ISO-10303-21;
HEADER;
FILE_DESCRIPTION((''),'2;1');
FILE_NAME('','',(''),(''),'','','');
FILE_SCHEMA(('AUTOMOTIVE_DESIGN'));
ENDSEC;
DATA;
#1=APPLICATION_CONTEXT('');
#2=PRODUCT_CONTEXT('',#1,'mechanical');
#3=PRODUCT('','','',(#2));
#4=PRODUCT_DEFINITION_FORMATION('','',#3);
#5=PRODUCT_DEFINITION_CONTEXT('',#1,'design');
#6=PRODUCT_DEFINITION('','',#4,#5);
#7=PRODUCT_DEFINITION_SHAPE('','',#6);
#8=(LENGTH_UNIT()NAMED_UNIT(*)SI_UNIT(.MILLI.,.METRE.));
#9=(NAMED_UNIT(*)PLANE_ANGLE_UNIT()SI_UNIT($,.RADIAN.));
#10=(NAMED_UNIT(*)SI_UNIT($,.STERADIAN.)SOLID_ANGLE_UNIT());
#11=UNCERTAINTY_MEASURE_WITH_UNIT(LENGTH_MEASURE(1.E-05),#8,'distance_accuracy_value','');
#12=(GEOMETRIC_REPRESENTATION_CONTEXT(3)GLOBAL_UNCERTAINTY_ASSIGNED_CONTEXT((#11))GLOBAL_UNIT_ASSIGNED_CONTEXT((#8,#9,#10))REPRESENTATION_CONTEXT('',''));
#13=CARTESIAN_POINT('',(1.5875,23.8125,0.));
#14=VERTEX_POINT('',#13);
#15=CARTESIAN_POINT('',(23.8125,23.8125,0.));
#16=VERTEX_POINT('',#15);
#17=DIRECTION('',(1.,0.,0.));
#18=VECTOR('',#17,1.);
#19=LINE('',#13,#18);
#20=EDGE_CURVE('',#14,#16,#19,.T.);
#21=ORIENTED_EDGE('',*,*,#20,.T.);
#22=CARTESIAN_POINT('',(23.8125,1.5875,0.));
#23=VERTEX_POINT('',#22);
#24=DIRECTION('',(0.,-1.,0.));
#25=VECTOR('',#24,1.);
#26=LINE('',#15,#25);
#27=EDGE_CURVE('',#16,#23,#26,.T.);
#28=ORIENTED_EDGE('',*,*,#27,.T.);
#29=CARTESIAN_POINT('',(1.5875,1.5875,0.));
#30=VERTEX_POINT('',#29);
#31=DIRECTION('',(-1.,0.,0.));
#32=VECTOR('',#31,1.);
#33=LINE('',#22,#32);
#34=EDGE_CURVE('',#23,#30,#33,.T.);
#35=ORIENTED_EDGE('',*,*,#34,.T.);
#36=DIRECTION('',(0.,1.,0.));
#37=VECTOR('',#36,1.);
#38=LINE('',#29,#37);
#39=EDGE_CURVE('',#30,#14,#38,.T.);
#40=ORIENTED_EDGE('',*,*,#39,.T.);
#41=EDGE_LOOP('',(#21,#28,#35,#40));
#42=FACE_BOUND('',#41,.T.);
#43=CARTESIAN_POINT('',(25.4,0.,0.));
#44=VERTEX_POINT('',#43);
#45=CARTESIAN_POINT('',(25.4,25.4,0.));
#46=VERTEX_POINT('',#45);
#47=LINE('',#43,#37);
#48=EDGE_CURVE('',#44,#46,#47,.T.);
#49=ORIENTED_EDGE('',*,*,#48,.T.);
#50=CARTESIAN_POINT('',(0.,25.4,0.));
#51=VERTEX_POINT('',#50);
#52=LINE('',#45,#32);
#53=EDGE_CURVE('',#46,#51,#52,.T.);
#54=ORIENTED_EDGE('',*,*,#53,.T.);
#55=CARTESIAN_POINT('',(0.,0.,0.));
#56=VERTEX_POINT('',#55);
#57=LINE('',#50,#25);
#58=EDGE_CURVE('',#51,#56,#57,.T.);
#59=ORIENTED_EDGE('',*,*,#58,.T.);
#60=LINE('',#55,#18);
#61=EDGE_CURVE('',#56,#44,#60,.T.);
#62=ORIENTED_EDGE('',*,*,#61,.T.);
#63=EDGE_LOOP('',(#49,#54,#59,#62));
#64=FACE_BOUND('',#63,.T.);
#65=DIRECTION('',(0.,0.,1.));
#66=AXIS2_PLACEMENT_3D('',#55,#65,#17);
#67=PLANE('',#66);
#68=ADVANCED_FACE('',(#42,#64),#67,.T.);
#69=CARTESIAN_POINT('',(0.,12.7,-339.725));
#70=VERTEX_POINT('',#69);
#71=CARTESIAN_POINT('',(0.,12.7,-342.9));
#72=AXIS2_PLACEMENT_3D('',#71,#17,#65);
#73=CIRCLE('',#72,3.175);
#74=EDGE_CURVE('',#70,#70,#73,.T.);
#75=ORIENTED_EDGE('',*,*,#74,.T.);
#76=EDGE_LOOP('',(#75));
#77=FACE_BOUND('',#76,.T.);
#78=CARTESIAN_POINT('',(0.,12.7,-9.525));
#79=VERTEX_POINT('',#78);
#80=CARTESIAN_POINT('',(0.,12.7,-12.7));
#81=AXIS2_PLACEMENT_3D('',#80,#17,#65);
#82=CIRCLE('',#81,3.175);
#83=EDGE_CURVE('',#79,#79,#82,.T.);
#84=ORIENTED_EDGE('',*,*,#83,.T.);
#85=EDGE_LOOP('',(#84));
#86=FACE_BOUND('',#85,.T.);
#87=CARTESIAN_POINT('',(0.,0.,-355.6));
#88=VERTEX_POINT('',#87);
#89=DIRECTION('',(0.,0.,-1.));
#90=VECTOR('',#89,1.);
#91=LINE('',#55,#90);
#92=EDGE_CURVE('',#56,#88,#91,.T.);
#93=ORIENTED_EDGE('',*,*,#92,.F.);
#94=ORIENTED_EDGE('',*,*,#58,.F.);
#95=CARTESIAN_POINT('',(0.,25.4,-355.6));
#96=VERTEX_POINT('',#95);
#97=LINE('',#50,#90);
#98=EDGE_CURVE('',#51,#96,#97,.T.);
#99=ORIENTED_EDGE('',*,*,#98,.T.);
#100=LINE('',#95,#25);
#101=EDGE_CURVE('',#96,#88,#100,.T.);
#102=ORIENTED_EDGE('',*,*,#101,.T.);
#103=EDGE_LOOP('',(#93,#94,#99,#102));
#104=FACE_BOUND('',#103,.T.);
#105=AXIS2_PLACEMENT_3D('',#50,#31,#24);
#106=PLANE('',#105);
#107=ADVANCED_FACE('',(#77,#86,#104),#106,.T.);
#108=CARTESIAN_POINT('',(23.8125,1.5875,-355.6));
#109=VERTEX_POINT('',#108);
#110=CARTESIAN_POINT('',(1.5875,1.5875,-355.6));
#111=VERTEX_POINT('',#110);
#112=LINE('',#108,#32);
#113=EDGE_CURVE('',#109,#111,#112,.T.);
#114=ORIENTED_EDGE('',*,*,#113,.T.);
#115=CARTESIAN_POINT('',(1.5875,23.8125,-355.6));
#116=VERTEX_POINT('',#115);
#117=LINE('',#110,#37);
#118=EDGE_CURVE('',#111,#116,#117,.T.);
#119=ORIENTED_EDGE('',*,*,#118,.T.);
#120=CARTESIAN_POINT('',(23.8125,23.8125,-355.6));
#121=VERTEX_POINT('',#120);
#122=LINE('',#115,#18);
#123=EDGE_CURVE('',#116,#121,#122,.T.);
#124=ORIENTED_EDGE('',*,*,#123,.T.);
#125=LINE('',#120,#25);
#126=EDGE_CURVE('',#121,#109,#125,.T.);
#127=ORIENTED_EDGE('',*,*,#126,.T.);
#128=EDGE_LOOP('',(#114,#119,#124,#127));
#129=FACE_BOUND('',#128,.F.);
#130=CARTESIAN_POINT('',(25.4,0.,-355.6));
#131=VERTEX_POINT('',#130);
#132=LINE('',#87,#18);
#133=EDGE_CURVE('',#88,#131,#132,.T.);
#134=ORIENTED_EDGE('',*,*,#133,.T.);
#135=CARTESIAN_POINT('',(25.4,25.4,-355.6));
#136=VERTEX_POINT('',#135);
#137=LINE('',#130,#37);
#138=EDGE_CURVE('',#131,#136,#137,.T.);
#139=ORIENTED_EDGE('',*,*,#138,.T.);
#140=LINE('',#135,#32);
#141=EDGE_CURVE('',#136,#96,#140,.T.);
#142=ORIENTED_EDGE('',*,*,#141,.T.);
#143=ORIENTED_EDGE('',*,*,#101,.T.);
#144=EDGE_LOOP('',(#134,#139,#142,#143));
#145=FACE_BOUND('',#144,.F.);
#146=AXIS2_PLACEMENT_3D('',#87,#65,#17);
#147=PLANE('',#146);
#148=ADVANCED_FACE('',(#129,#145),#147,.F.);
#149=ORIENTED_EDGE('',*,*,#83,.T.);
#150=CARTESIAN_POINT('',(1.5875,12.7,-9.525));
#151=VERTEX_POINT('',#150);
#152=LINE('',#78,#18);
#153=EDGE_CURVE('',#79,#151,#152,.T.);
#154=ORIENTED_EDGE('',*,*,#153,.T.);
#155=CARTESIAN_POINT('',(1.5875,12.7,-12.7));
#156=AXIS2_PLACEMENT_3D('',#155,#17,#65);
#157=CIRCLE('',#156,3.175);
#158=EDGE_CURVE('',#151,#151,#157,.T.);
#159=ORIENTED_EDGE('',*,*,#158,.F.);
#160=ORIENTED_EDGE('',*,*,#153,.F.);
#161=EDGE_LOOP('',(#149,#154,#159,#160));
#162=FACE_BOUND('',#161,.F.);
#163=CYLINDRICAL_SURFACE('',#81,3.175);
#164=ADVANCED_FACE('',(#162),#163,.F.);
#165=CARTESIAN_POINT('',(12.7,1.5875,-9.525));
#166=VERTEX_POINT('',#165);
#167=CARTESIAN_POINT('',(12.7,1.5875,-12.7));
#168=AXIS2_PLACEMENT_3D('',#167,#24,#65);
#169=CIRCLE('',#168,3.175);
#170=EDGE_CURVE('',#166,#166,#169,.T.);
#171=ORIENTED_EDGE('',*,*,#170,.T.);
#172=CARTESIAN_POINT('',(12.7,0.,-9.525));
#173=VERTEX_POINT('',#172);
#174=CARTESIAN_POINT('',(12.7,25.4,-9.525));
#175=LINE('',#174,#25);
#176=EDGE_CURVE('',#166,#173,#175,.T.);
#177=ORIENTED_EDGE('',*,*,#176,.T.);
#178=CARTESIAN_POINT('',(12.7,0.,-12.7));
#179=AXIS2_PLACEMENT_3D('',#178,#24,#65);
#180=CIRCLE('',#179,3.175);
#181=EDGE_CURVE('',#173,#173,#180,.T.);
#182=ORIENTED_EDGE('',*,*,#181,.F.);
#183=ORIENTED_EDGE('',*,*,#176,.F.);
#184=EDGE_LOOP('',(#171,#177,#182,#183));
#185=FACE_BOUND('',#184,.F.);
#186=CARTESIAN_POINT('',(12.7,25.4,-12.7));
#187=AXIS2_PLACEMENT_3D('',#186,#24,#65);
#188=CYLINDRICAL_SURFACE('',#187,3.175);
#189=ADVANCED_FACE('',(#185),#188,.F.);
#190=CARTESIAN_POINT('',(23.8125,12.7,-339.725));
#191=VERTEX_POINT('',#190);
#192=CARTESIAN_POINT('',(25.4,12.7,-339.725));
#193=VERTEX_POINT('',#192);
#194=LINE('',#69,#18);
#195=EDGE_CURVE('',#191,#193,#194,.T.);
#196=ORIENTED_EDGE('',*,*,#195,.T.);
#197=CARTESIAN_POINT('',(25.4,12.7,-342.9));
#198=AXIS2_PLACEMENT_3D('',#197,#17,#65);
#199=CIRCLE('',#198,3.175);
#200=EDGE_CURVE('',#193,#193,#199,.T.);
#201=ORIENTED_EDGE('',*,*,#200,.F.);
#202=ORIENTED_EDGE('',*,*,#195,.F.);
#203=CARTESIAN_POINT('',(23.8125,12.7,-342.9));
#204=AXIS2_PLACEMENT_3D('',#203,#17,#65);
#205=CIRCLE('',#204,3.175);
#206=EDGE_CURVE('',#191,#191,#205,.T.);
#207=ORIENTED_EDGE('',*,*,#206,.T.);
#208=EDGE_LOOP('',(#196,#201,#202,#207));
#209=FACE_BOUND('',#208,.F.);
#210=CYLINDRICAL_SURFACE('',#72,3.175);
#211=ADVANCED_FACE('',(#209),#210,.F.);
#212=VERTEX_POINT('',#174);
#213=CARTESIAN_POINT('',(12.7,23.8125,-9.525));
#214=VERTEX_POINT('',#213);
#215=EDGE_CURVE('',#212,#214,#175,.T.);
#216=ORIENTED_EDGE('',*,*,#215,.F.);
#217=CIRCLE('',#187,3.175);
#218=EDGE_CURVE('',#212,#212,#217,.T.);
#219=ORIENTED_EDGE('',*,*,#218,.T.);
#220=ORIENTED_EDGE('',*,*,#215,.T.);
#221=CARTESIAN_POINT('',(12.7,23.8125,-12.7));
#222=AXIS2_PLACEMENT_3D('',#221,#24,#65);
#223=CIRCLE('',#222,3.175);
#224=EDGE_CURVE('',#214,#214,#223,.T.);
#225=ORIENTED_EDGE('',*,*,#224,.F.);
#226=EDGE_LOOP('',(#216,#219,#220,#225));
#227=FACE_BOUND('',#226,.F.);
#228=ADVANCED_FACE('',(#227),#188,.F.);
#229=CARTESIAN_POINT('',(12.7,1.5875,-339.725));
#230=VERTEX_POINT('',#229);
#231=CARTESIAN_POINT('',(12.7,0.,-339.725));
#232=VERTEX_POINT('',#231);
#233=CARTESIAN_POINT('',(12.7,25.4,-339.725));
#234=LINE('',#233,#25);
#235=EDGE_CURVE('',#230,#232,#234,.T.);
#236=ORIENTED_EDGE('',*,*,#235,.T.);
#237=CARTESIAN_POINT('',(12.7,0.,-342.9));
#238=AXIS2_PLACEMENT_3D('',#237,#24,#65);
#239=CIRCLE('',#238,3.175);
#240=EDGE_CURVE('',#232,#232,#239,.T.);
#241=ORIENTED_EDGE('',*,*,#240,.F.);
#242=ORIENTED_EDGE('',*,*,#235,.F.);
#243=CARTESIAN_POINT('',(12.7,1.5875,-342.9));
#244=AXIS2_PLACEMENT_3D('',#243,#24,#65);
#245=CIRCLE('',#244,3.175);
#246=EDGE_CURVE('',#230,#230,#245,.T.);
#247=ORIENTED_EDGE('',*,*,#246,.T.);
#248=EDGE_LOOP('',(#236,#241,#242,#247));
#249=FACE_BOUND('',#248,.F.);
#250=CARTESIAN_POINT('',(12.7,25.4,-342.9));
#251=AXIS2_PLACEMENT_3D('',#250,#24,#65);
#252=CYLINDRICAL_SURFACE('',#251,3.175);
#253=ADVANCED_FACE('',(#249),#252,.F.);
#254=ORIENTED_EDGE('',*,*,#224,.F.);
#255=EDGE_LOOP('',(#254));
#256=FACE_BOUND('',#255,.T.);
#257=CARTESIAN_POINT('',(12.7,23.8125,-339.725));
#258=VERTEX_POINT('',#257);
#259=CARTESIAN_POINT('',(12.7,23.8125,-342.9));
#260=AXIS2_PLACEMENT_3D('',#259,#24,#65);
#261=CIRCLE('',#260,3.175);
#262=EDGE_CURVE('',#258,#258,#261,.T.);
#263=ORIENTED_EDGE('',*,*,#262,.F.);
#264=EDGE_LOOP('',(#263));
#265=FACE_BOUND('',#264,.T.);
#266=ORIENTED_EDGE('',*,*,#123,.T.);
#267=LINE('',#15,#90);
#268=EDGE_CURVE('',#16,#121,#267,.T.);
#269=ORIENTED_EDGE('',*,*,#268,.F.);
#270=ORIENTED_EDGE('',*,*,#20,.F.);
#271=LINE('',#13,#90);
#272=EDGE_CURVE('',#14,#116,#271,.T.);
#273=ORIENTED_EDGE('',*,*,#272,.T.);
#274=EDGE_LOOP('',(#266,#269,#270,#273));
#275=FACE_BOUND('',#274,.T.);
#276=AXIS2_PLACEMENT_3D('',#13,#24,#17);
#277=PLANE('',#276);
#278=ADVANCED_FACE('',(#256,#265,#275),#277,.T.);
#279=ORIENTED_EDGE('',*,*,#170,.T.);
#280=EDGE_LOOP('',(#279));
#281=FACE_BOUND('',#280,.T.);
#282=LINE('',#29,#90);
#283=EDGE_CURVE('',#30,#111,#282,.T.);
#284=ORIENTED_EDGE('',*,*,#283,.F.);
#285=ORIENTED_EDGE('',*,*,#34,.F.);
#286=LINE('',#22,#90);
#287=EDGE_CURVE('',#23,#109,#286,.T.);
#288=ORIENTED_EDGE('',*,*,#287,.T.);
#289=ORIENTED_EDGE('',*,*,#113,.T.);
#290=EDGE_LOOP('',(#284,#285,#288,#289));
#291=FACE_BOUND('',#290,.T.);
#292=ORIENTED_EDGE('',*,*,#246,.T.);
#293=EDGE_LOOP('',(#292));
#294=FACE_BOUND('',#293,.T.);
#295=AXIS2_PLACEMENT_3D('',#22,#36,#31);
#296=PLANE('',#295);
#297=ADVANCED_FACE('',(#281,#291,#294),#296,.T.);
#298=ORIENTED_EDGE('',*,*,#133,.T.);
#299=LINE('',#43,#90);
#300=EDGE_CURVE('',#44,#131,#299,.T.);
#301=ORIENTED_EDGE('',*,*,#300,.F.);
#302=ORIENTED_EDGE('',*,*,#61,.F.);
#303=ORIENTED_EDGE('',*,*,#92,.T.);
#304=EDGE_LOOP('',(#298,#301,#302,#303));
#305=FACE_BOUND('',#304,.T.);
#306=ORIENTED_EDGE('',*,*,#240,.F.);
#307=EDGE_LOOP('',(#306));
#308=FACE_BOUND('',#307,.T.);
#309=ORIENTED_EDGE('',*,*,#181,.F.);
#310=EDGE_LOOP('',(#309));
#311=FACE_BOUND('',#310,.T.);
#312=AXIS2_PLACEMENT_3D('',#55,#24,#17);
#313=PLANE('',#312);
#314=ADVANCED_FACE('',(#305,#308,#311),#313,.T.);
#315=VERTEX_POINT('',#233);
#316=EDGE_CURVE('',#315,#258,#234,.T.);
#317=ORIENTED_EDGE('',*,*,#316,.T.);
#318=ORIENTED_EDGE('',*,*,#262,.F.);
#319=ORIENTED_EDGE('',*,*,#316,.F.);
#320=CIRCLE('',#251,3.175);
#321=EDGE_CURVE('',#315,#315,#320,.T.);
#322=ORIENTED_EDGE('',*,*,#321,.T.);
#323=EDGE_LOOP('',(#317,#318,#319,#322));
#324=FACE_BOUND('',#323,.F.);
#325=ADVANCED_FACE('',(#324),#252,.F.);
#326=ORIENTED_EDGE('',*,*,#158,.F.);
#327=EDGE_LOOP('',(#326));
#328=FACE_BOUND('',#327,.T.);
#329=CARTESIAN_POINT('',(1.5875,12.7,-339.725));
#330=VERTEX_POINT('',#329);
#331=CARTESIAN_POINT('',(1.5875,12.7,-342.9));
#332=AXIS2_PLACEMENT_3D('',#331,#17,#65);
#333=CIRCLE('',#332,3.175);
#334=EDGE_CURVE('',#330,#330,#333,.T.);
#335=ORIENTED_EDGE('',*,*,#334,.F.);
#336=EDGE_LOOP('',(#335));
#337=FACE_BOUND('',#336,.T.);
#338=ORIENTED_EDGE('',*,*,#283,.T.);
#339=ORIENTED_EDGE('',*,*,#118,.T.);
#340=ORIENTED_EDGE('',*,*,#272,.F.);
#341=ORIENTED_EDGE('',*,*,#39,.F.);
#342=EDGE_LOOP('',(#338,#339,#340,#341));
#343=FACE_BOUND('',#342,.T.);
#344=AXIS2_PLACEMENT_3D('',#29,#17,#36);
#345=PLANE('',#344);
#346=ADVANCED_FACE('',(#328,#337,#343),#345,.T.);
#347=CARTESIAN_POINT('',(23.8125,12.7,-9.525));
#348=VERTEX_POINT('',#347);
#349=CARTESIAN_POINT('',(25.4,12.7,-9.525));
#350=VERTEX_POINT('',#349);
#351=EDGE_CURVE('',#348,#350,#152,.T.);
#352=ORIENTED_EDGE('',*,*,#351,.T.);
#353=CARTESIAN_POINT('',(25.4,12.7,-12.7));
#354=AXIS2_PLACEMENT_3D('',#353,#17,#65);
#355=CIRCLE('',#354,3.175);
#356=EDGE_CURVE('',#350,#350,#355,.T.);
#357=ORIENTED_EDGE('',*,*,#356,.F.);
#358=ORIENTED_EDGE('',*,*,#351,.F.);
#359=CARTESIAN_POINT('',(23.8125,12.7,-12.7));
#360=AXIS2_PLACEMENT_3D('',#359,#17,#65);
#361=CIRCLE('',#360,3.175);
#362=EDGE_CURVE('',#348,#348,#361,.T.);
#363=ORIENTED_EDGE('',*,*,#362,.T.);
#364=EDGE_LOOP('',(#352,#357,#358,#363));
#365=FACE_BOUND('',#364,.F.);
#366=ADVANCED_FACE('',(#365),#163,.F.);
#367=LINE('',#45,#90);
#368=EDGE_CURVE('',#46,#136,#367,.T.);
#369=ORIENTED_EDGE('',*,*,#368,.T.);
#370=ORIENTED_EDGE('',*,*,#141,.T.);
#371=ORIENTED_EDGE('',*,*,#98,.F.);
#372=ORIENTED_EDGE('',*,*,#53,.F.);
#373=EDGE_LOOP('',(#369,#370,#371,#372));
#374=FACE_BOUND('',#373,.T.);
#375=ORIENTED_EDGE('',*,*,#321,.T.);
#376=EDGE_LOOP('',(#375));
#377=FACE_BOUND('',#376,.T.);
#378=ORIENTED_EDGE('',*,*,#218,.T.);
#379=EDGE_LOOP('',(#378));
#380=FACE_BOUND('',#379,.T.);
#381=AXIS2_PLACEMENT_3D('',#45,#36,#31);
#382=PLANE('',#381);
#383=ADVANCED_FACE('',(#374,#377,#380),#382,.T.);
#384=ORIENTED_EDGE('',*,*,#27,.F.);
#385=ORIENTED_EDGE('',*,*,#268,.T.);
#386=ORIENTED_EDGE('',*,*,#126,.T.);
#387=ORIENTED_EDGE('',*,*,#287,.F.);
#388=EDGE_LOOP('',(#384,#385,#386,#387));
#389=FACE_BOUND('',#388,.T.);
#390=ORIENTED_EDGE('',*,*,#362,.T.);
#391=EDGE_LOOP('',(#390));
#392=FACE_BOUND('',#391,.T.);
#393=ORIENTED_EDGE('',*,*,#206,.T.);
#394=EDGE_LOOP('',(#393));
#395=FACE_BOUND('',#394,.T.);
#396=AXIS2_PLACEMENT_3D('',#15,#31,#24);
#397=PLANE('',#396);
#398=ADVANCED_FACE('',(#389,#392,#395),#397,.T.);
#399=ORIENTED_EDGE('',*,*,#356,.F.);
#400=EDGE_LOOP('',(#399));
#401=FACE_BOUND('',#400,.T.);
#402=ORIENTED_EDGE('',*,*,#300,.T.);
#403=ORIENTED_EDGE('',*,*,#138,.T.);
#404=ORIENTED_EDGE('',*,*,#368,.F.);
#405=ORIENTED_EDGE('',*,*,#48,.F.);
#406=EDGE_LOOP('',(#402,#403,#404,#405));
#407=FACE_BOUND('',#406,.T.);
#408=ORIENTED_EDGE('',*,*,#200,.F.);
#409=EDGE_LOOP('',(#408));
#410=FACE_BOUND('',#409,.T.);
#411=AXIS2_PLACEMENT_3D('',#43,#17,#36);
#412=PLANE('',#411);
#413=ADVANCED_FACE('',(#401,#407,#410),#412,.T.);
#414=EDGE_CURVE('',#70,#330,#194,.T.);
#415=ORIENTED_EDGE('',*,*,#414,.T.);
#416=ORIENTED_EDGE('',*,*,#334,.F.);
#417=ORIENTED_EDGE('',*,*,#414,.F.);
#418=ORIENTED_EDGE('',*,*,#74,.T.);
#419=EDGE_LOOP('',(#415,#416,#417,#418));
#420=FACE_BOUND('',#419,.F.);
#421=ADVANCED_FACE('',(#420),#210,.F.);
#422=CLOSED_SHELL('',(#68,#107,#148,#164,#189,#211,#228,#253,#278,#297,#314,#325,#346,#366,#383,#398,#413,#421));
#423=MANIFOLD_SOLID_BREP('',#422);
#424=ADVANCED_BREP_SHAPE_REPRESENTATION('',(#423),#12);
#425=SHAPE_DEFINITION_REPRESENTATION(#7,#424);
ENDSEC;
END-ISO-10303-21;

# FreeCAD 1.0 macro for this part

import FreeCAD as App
import Part
import Sketcher
from FreeCAD import Vector
Q = App.Units.Quantity

doc = App.newDocument("Part")
body = doc.addObject("PartDesign::Body", "Body")

# Sketch on XY plane
sketch1 = doc.addObject("Sketcher::SketchObject", "Sketch")
body.addObject(sketch1)
sketch1.AttachmentSupport = (doc.XY_Plane, [""])
sketch1.MapMode = "FlatFace"
sketch1.addGeometry([
    Part.LineSegment(Vector(0, 25, 0), Vector(0, 0, 0)),  # 0
    Part.LineSegment(Vector(0, 0, 0), Vector(25, 0, 0)),  # 1
    Part.LineSegment(Vector(25, 0, 0), Vector(25, 25, 0)),  # 2
    Part.LineSegment(Vector(25, 25, 0), Vector(0, 25, 0)),  # 3
    Part.LineSegment(Vector(2, 2, 0), Vector(2, 24, 0)),  # 4
    Part.LineSegment(Vector(2, 24, 0), Vector(24, 24, 0)),  # 5
    Part.LineSegment(Vector(24, 24, 0), Vector(24, 2, 0)),  # 6
    Part.LineSegment(Vector(24, 2, 0), Vector(2, 2, 0)),  # 7
], False)
sketch1.addConstraint([
    Sketcher.Constraint("Coincident", 0, 2, 1, 1),
    Sketcher.Constraint("Coincident", 1, 2, 2, 1),
    Sketcher.Constraint("Coincident", 2, 2, 3, 1),
    Sketcher.Constraint("Coincident", 3, 2, 0, 1),
    Sketcher.Constraint("Coincident", 4, 2, 5, 1),
    Sketcher.Constraint("Coincident", 5, 2, 6, 1),
    Sketcher.Constraint("Coincident", 6, 2, 7, 1),
    Sketcher.Constraint("Coincident", 7, 2, 4, 1),
    Sketcher.Constraint("Vertical", 0),
    Sketcher.Constraint("Horizontal", 1),
    Sketcher.Constraint("Vertical", 2),
    Sketcher.Constraint("Horizontal", 3),
    Sketcher.Constraint("Vertical", 4),
    Sketcher.Constraint("Horizontal", 5),
    Sketcher.Constraint("Vertical", 6),
    Sketcher.Constraint("Horizontal", 7),
    Sketcher.Constraint("Coincident", 0, 2, -1, 1),
    Sketcher.Constraint("Equal", 3, 0),
    Sketcher.Constraint("Equal", 7, 4),
    Sketcher.Constraint("DistanceX", 1, 1, 1, 2, Q("1 in")),
    Sketcher.Constraint("DistanceX", -1, 1, 4, 2, Q("0.0625 in")),
    Sketcher.Constraint("DistanceY", -1, 1, 6, 2, Q("0.0625 in")),
    Sketcher.Constraint("DistanceY", 4, 2, 3, 2, Q("0.0625 in")),
])
pad1 = doc.addObject("PartDesign::Pad", "Pad")
body.addObject(pad1)
pad1.Profile = sketch1
pad1.Length = Q("14 in")
pad1.Reversed = True

# Sketch on YZ plane
sketch2 = doc.addObject("Sketcher::SketchObject", "Sketch001")
body.addObject(sketch2)
sketch2.AttachmentSupport = (doc.YZ_Plane, [""])
sketch2.MapMode = "FlatFace"
sketch2.addGeometry([
    Part.Circle(Vector(12.7, -12.7, 0), Vector(0, 0, 1), 3.2),
    Part.Circle(Vector(12.7, -342.9, 0), Vector(0, 0, 1), 3.2),
], False)
sketch2.addConstraint([
    Sketcher.Constraint("Equal", 0, 1),
    Sketcher.Constraint("Vertical", 0, 3, 1, 3),
    Sketcher.Constraint("Diameter", 0, Q("0.25 in")),
    Sketcher.Constraint("DistanceY", 1, 3, 0, 3, Q("13 in")),
    Sketcher.Constraint("DistanceX", -1, 1, 0, 3, Q("0.5 in")),
    Sketcher.Constraint("DistanceY", 0, 3, -1, 1, Q("0.5 in")),
])
doc.recompute()
hole = doc.addObject("PartDesign::Hole", "Hole")
body.addObject(hole)
hole.Profile = sketch2
hole.ThreadType = "None"
hole.Diameter = Q("0.25 in")
hole.DepthType = "Dimension"
hole.Depth = Q("1 in")
hole.DrillPoint = "Angled"
hole.DrillPointAngle = 118
hole.Reversed = True

# Sketch on XZ plane
sketch3 = doc.addObject("Sketcher::SketchObject", "Sketch002")
body.addObject(sketch3)
sketch3.AttachmentSupport = (doc.XZ_Plane, [""])
sketch3.MapMode = "FlatFace"
sketch3.AttachmentOffset = App.Placement(Vector(0, 0, -1 * 25.4), App.Rotation())
sketch3.addGeometry([
    Part.Circle(Vector(12.7, -12.7, 0), Vector(0, 0, 1), 3.2),
    Part.Circle(Vector(12.7, -342.9, 0), Vector(0, 0, 1), 3.2),
], False)
sketch3.addConstraint([
    Sketcher.Constraint("Equal", 0, 1),
    Sketcher.Constraint("Vertical", 0, 3, 1, 3),
    Sketcher.Constraint("Diameter", 0, Q("0.25 in")),
    Sketcher.Constraint("DistanceY", 1, 3, 0, 3, Q("13 in")),
    Sketcher.Constraint("DistanceX", -1, 1, 0, 3, Q("0.5 in")),
    Sketcher.Constraint("DistanceY", 0, 3, -1, 1, Q("0.5 in")),
])
doc.recompute()
hole2 = doc.addObject("PartDesign::Hole", "Hole001")
body.addObject(hole2)
hole2.Profile = sketch3
hole2.ThreadType = "None"
hole2.Diameter = Q("0.25 in")
hole2.DepthType = "Dimension"
hole2.Depth = Q("1 in")
hole2.DrillPoint = "Angled"
hole2.DrillPointAngle = 118
hole2.Reversed = True

doc.recompute()
